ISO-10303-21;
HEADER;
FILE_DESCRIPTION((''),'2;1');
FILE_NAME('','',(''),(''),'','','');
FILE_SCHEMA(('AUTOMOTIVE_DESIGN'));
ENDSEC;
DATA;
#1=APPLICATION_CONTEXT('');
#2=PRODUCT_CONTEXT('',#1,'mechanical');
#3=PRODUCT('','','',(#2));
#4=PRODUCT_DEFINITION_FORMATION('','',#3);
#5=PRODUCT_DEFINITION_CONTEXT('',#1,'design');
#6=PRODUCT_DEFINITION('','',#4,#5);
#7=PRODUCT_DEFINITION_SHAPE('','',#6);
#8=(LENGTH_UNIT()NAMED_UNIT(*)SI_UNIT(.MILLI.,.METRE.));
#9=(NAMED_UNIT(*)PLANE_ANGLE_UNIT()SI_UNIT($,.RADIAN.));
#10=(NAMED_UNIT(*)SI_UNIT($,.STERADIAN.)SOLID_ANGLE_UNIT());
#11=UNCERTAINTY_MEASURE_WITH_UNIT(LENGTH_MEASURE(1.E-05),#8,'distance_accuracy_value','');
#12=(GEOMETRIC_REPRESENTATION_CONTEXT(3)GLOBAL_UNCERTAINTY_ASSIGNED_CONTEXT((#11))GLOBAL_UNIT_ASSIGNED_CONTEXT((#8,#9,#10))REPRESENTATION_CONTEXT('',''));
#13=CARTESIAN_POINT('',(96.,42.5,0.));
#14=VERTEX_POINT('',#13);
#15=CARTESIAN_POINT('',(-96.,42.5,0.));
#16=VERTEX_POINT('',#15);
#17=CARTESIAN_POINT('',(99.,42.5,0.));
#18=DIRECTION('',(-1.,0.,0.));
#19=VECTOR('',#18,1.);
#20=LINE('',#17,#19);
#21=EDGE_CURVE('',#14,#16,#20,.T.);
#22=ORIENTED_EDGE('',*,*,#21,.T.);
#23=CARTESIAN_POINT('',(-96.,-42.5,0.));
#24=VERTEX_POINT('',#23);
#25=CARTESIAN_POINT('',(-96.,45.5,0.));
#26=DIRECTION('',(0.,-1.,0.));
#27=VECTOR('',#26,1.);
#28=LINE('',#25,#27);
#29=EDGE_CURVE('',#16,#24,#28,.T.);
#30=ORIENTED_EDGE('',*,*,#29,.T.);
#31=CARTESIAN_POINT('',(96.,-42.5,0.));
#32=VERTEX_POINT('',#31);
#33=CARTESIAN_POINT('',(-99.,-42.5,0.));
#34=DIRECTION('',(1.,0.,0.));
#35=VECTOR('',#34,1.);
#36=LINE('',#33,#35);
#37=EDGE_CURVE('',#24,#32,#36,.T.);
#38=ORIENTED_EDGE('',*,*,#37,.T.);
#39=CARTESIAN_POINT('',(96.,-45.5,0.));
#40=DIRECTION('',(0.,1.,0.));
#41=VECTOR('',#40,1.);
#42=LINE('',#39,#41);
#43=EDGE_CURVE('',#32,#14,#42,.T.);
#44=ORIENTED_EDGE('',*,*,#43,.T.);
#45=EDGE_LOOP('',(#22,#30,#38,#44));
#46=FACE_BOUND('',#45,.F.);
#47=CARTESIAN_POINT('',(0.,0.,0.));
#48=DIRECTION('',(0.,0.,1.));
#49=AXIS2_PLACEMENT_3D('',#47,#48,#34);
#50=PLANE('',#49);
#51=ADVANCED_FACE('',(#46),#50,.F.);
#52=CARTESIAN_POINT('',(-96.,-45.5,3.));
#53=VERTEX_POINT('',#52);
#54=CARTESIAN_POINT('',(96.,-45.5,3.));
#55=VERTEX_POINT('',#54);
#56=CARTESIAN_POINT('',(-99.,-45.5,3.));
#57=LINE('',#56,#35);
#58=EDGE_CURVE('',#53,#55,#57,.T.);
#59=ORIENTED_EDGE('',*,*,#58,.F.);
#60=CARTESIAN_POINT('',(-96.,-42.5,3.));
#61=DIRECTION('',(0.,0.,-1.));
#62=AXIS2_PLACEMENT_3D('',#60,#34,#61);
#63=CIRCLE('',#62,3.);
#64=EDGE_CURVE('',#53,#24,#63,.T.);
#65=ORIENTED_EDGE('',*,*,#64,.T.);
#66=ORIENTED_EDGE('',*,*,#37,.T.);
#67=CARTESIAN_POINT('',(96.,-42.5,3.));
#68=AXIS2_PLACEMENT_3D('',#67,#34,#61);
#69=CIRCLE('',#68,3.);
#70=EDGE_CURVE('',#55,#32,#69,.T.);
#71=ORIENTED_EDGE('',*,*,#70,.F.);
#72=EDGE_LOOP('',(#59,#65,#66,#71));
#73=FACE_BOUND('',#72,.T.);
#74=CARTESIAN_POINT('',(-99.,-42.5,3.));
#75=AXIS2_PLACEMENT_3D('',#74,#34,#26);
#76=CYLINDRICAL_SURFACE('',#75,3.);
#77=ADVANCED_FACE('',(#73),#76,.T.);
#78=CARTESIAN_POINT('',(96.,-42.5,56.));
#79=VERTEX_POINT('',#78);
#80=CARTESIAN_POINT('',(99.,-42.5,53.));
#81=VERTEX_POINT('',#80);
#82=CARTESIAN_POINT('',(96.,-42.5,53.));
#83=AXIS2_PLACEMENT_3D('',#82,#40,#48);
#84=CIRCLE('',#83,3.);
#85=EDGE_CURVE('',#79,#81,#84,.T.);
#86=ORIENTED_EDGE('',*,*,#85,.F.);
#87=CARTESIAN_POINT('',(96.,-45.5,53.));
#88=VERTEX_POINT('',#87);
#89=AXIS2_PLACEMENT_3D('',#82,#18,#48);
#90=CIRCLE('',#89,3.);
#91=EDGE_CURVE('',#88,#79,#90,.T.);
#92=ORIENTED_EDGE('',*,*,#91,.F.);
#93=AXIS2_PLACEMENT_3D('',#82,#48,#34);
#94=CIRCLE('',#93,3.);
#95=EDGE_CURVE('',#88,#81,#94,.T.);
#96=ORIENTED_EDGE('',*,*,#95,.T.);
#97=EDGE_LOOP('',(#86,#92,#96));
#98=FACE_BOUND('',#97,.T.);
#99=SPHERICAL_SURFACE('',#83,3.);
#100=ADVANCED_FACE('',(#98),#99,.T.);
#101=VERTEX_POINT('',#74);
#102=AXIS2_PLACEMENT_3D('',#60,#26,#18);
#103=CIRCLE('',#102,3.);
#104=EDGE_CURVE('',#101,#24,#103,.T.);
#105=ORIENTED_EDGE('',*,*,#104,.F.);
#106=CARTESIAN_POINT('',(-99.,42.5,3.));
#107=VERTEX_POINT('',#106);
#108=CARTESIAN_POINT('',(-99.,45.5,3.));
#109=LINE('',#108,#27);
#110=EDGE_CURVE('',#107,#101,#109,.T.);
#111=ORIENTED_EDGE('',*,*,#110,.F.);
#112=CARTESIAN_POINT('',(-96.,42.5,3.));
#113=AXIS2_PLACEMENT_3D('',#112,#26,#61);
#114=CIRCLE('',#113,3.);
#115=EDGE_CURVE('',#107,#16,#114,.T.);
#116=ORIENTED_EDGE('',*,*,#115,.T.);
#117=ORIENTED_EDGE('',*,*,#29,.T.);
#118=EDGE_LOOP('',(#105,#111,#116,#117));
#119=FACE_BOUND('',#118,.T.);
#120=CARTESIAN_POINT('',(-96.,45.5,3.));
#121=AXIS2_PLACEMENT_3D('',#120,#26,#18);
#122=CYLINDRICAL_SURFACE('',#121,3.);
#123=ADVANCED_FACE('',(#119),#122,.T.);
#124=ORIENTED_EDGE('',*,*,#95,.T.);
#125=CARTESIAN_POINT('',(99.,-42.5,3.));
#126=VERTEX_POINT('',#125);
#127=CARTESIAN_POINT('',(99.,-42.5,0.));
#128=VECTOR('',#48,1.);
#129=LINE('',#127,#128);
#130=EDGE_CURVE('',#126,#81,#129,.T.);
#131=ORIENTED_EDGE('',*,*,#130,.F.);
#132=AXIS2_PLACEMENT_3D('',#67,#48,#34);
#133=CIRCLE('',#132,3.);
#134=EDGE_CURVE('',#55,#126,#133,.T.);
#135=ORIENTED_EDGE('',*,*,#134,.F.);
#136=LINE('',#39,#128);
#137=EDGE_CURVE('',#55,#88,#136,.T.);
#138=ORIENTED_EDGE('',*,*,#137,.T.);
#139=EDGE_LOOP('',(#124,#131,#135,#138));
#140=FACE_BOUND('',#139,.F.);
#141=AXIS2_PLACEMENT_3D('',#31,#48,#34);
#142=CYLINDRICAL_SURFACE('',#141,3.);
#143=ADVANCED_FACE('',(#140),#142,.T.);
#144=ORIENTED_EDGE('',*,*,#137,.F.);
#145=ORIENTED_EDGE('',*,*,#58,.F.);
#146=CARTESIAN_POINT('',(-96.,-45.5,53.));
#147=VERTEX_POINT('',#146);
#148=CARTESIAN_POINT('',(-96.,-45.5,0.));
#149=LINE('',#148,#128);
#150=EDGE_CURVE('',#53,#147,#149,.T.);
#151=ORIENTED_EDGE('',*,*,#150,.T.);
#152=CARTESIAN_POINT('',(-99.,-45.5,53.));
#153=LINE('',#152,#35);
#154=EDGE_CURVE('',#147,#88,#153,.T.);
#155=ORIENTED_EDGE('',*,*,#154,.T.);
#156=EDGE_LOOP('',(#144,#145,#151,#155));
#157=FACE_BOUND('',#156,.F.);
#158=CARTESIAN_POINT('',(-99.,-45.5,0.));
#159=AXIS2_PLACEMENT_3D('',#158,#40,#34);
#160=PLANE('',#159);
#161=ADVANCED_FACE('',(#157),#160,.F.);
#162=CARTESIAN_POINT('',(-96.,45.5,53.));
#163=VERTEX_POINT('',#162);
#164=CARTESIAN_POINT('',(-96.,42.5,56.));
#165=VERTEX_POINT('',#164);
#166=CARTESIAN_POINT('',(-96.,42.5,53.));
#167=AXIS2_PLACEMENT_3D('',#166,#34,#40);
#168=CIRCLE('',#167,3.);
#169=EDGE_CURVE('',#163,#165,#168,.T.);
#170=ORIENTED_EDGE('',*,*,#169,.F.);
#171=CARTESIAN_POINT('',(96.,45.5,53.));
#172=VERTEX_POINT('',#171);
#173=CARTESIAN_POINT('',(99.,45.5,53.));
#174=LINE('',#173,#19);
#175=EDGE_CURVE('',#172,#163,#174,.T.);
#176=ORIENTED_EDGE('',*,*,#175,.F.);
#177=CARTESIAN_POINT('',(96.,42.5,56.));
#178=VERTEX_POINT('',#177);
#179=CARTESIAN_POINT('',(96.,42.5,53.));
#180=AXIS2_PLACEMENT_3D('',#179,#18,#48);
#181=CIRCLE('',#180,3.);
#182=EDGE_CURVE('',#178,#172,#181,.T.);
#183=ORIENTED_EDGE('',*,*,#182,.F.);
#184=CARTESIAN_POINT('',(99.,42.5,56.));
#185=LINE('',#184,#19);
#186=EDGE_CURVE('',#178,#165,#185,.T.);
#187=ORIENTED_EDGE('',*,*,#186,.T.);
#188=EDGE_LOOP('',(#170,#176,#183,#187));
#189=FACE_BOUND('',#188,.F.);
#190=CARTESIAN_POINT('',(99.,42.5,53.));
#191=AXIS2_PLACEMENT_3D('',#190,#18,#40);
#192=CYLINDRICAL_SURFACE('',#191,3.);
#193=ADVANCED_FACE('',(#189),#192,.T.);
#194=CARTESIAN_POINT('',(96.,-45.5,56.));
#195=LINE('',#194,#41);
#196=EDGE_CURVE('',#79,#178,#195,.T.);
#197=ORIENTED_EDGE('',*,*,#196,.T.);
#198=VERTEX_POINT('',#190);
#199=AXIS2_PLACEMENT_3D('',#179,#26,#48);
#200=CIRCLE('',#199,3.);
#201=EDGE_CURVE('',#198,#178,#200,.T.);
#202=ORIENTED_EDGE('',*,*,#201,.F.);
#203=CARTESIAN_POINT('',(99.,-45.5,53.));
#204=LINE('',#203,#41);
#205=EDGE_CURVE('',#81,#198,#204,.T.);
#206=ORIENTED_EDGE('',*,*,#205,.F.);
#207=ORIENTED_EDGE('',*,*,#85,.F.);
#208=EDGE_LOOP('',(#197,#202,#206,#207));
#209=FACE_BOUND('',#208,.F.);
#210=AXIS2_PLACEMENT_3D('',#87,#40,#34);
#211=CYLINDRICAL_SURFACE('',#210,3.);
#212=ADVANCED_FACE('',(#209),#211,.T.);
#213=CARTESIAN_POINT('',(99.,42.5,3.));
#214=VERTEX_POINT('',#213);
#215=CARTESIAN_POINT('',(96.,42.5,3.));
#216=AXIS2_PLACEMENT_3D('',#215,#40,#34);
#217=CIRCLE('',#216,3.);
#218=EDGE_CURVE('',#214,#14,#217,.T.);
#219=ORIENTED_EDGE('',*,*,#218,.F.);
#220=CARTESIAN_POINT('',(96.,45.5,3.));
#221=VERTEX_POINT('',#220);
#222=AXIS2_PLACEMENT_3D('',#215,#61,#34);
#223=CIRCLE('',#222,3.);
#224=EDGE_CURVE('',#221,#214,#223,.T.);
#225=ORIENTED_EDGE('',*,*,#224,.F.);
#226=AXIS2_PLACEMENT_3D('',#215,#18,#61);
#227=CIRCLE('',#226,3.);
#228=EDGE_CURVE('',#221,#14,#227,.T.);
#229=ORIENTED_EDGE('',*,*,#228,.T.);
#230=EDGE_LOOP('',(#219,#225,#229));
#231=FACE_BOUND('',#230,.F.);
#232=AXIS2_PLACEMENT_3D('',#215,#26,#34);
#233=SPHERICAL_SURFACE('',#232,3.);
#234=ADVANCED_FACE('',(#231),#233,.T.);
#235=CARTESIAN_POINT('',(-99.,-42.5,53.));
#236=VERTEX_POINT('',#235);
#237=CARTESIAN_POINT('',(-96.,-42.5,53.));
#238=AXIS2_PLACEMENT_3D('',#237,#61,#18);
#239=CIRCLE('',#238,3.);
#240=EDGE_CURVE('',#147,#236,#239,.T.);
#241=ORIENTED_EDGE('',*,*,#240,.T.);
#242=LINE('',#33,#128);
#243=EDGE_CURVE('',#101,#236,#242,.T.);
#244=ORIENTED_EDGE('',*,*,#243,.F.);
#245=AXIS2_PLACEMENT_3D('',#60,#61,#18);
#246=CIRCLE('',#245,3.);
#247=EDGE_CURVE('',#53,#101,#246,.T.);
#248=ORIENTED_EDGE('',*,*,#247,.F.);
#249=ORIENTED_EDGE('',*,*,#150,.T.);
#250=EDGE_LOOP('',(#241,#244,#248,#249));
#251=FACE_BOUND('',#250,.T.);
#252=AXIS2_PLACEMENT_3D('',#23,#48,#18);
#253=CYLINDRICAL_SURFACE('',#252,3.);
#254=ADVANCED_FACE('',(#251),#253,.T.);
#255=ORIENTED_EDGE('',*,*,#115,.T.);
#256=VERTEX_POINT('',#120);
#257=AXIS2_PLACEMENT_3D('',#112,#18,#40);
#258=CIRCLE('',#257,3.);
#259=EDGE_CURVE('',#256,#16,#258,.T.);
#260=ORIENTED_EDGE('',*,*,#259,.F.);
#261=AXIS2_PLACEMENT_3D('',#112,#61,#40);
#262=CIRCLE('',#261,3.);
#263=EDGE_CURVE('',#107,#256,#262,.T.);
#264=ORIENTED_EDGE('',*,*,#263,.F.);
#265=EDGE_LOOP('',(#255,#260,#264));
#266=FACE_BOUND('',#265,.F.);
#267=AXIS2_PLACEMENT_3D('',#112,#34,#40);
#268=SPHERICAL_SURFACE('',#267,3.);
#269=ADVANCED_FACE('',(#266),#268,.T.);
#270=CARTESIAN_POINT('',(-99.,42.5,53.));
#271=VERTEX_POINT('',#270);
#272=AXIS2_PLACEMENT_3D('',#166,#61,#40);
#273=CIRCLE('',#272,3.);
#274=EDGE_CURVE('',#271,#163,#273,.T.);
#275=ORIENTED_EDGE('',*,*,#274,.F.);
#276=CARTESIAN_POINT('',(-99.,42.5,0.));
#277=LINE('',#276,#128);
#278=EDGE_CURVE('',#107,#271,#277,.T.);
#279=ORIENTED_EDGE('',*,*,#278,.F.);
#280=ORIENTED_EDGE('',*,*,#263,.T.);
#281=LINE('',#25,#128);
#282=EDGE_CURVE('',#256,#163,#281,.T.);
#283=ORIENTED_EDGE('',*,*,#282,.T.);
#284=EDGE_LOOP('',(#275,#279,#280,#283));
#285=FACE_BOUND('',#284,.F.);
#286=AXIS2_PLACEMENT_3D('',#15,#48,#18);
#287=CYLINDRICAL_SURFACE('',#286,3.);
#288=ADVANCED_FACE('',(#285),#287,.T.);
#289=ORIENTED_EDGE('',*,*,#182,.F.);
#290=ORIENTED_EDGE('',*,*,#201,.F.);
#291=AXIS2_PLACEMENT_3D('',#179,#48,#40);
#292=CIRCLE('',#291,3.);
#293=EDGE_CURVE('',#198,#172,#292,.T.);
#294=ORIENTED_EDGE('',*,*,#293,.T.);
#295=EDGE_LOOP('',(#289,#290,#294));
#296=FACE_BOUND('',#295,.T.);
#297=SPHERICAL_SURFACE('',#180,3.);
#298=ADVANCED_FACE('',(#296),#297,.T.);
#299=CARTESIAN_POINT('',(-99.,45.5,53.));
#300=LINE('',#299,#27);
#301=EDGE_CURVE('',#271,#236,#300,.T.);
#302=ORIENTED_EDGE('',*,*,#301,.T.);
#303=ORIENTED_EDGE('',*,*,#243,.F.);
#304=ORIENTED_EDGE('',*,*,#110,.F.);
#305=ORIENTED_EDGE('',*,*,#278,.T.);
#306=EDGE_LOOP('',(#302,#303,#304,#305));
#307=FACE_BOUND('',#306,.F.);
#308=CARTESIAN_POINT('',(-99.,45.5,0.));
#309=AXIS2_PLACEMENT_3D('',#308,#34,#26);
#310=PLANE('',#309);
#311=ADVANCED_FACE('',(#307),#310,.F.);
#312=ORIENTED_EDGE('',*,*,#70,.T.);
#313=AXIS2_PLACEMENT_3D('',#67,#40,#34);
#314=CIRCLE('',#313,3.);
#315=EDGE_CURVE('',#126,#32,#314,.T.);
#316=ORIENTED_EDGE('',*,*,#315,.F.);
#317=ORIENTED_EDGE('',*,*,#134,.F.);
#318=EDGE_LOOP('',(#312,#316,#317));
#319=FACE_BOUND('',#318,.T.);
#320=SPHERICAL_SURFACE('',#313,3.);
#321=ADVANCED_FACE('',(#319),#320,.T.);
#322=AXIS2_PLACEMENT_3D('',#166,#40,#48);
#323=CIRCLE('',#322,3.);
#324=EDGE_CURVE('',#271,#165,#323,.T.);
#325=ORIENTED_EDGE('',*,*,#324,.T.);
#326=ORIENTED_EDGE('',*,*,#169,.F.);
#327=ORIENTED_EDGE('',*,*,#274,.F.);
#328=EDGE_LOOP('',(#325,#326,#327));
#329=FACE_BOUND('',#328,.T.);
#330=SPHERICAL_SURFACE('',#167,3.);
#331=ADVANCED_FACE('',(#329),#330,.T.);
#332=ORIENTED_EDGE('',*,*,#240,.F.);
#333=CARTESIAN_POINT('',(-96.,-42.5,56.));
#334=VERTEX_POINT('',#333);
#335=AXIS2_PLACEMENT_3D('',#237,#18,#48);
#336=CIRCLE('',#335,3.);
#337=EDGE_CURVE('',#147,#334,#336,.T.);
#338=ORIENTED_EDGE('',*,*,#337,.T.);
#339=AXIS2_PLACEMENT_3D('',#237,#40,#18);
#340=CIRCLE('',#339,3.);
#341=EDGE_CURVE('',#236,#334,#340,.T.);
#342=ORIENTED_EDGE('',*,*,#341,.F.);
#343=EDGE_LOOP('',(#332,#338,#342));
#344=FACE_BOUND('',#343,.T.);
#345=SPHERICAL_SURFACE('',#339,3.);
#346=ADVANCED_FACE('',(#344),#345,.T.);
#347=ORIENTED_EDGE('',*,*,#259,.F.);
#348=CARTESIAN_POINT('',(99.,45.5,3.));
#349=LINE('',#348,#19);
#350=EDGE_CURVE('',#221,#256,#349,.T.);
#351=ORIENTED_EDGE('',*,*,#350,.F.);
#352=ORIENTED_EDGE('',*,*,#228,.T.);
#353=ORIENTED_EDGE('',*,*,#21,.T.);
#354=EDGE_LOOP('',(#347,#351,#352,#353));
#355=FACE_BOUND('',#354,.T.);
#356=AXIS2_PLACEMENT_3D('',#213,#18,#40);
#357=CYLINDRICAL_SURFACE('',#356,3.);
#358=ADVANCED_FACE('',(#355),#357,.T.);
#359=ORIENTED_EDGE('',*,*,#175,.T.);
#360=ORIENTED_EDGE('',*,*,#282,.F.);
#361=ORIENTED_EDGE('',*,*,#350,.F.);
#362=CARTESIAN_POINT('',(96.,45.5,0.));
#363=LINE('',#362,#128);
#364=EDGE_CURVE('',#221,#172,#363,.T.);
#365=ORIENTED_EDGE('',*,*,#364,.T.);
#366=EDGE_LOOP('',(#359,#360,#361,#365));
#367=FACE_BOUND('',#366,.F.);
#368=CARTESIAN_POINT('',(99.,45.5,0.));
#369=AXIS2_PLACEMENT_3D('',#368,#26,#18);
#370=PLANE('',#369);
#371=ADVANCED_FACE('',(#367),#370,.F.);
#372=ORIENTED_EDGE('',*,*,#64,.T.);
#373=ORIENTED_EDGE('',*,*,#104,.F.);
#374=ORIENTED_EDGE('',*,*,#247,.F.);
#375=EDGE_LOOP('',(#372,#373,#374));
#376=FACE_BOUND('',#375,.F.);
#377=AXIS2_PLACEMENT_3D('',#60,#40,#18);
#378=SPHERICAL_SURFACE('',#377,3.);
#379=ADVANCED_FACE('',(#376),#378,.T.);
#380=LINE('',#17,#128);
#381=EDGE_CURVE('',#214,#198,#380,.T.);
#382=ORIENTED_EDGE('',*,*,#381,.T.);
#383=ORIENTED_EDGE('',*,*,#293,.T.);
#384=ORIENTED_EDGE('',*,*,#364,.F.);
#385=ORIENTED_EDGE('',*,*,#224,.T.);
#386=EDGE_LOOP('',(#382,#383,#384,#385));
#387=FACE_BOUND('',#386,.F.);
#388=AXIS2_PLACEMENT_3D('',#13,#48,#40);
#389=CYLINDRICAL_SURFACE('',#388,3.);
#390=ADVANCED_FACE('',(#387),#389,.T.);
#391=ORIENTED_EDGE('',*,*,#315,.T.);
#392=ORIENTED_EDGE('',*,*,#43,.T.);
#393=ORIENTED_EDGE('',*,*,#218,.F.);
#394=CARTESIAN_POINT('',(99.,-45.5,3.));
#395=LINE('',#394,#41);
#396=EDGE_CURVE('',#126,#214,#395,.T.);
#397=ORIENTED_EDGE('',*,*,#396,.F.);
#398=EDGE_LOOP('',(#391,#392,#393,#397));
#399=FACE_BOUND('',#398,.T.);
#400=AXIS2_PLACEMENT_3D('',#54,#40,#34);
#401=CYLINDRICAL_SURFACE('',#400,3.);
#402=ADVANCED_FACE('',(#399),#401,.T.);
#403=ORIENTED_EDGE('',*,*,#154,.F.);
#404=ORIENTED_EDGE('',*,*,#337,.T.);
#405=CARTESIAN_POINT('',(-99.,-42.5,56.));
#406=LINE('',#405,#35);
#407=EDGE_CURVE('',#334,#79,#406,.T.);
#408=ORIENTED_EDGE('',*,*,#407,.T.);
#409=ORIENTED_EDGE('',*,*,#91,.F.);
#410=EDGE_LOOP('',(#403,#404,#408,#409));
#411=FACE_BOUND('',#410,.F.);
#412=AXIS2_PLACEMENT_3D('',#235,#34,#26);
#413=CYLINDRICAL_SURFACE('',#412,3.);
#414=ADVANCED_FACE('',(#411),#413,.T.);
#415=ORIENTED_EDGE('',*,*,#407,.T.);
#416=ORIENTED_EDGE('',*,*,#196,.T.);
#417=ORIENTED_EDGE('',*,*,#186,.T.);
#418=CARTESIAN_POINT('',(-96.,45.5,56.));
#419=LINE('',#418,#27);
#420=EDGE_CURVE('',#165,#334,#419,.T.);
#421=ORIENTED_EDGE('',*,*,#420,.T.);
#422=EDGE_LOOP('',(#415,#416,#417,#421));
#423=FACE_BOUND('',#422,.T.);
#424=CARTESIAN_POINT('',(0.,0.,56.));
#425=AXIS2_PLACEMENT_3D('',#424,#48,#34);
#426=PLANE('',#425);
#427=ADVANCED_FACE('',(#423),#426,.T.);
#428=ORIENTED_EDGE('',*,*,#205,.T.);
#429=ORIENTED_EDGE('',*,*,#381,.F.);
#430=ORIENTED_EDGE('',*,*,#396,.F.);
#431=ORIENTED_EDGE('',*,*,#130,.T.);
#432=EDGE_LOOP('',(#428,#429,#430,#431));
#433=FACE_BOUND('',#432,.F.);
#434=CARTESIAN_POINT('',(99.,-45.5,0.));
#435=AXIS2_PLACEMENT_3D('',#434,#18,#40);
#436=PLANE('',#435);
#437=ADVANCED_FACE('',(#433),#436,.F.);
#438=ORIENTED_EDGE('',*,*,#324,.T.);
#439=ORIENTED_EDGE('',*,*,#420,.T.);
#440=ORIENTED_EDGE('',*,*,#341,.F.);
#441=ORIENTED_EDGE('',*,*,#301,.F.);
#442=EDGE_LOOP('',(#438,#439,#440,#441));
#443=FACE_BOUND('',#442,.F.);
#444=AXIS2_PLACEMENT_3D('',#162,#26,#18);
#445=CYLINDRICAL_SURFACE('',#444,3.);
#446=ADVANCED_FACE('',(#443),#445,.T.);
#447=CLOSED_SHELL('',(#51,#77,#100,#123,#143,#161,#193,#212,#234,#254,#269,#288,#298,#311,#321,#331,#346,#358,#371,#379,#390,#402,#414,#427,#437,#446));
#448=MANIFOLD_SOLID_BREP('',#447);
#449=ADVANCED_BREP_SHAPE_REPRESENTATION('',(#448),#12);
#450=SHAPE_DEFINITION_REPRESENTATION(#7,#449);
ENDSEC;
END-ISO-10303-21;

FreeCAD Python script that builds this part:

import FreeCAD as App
import Part
import Sketcher
from FreeCAD import Vector
Q = App.Units.Quantity

doc = App.newDocument("Part")
params = doc.addObject("Spreadsheet::Sheet", "Params")
for row, (alias, value) in enumerate([
    ("sketch1_width", "198 mm"),
    ("sketch1_height", "91 mm"),
    ("pad1_length", "56 mm"),
    ("fillet_radius", "3 mm"),
], start=1):
    params.set(f"A{row}", alias)
    params.set(f"B{row}", "=" + value)
    params.setAlias(f"B{row}", alias)

body = doc.addObject("PartDesign::Body", "Body")

# Sketch on XY plane
sketch1 = doc.addObject("Sketcher::SketchObject", "Sketch")
body.addObject(sketch1)
sketch1.AttachmentSupport = (doc.XY_Plane, [""])
sketch1.MapMode = "FlatFace"
sketch1.addGeometry([
    Part.LineSegment(Vector(-99, 46, 0), Vector(-99, -46, 0)),
    Part.LineSegment(Vector(-99, -46, 0), Vector(99, -46, 0)),
    Part.LineSegment(Vector(99, -46, 0), Vector(99, 46, 0)),
    Part.LineSegment(Vector(99, 46, 0), Vector(-99, 46, 0)),
], False)
sketch1.addConstraint([
    Sketcher.Constraint("Coincident", 0, 2, 1, 1),
    Sketcher.Constraint("Coincident", 1, 2, 2, 1),
    Sketcher.Constraint("Coincident", 2, 2, 3, 1),
    Sketcher.Constraint("Coincident", 3, 2, 0, 1),
    Sketcher.Constraint("Vertical", 0),
    Sketcher.Constraint("Horizontal", 1),
    Sketcher.Constraint("Vertical", 2),
    Sketcher.Constraint("Horizontal", 3),
    Sketcher.Constraint("Symmetric", 0, 2, 2, 2, -1, 1),
    Sketcher.Constraint("DistanceX", 1, 1, 1, 2, Q("198 mm")),
    Sketcher.Constraint("DistanceY", 0, 2, 0, 1, Q("91 mm")),
])
sketch1.setExpression("Constraints[9]", "Params.sketch1_width")
sketch1.setExpression("Constraints[10]", "Params.sketch1_height")
pad1 = doc.addObject("PartDesign::Pad", "Pad")
body.addObject(pad1)
pad1.Profile = sketch1
pad1.setExpression("Length", "Params.pad1_length")
doc.recompute()

fillet = doc.addObject("PartDesign::Fillet", "Fillet")
body.addObject(fillet)
fillet.Base = (pad1, ["Edge1"])
fillet.UseAllEdges = True
fillet.setExpression("Radius", "Params.fillet_radius")

doc.recompute()
